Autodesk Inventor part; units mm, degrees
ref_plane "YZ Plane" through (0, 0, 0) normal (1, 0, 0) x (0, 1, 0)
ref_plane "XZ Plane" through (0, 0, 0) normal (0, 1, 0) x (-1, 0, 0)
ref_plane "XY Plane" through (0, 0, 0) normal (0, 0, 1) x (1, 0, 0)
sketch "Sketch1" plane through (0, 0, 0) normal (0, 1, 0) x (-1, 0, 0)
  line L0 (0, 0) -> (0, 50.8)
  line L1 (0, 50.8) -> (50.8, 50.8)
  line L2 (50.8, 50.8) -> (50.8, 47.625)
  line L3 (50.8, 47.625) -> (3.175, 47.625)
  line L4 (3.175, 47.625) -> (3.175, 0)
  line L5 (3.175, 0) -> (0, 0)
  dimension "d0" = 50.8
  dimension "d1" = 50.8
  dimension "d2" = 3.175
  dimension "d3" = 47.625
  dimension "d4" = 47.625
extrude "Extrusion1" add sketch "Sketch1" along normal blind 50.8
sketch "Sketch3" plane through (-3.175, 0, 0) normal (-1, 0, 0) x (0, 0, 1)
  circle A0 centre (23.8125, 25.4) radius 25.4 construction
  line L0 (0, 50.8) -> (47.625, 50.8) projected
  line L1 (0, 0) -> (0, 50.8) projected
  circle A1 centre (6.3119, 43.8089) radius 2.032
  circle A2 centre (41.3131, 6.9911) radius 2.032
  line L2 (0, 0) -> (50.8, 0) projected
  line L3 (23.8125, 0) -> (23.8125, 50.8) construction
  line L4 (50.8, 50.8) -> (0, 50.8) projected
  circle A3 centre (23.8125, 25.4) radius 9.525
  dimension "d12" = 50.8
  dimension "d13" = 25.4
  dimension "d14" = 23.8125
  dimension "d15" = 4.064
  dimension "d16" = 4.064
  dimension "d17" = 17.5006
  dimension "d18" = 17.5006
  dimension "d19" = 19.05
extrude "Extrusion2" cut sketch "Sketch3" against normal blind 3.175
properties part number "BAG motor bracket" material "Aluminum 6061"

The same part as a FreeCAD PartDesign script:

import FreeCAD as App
import Part
import Sketcher
Q = App.Units.Quantity

doc = App.newDocument("Part")
body = doc.addObject("PartDesign::Body", "Body")

# Sketch on XZ plane
sketch1 = body.newObject("Sketcher::SketchObject", "Sketch")
sketch1.AttachmentSupport = (doc.getObject("XZ_Plane"), [""])
sketch1.MapMode = "FlatFace"
sketch1.addGeometry([
    Part.LineSegment(App.Vector(0, 50.8, 0), App.Vector(0, 0, 0)),  # 0
    Part.LineSegment(App.Vector(0, 0, 0), App.Vector(-3.2, 0, 0)),  # 1
    Part.LineSegment(App.Vector(-3.2, 0, 0), App.Vector(-3.2, 47.6, 0)),  # 2
    Part.LineSegment(App.Vector(-3.2, 47.6, 0), App.Vector(-50.8, 47.6, 0)),  # 3
    Part.LineSegment(App.Vector(-50.8, 47.6, 0), App.Vector(-50.8, 50.8, 0)),  # 4
    Part.LineSegment(App.Vector(-50.8, 50.8, 0), App.Vector(0, 50.8, 0)),  # 5
], False)
sketch1.addConstraint([
    Sketcher.Constraint("Coincident", 0, 2, 1, 1),
    Sketcher.Constraint("Coincident", 1, 2, 2, 1),
    Sketcher.Constraint("Coincident", 2, 2, 3, 1),
    Sketcher.Constraint("Coincident", 3, 2, 4, 1),
    Sketcher.Constraint("Coincident", 4, 2, 5, 1),
    Sketcher.Constraint("Coincident", 5, 2, 0, 1),
    Sketcher.Constraint("Vertical", 0),
    Sketcher.Constraint("Horizontal", 1),
    Sketcher.Constraint("Vertical", 2),
    Sketcher.Constraint("Horizontal", 3),
    Sketcher.Constraint("Vertical", 4),
    Sketcher.Constraint("Horizontal", 5),
    Sketcher.Constraint("Coincident", 0, 2, -1, 1),
    Sketcher.Constraint("Equal", 5, 0),
    Sketcher.Constraint("Equal", 3, 2),
    Sketcher.Constraint("DistanceX", 5, 1, 5, 2, Q("2 in")),
    Sketcher.Constraint("DistanceX", 1, 2, 1, 1, Q("0.125 in")),
])
pad1 = body.newObject("PartDesign::Pad", "Pad")
pad1.Profile = sketch1
pad1.Length = Q("2 in")
pad1.Reversed = True

# Sketch on YZ plane
sketch2 = body.newObject("Sketcher::SketchObject", "Sketch001")
sketch2.AttachmentSupport = (doc.getObject("YZ_Plane"), [""])
sketch2.MapMode = "FlatFace"
sketch2.AttachmentOffset = App.Placement(App.Vector(0, 0, -0.125 * 25.4), App.Rotation())
sketch2.addGeometry([
    Part.Circle(App.Vector(43.8, 6.3, 0), App.Vector(0, 0, 1), 2),
    Part.Circle(App.Vector(7, 41.3, 0), App.Vector(0, 0, 1), 2),
    Part.Circle(App.Vector(25.4, 23.8, 0), App.Vector(0, 0, 1), 9.5),
], False)
sketch2.addConstraint([
    Sketcher.Constraint("Equal", 0, 1),
    Sketcher.Constraint("Diameter", 0, Q("0.16 in")),
    Sketcher.Constraint("Diameter", 2, Q("0.75 in")),
    Sketcher.Constraint("DistanceX", -1, 1, 2, 3, Q("1 in")),
    Sketcher.Constraint("DistanceY", -1, 1, 2, 3, Q("0.9375 in")),
    Sketcher.Constraint("DistanceY", 2, 3, 1, 3, Q("0.689 in")),
    Sketcher.Constraint("DistanceY", 0, 3, 2, 3, Q("0.689 in")),
    Sketcher.Constraint("DistanceX", -1, 1, 0, 3, Q("43.809 mm")),
    Sketcher.Constraint("DistanceX", -1, 1, 1, 3, Q("6.991 mm")),
])
pocket1 = body.newObject("PartDesign::Pocket", "Pocket")
pocket1.Profile = sketch2
pocket1.Length = Q("0.125 in")
pocket1.Reversed = True

doc.recompute()
